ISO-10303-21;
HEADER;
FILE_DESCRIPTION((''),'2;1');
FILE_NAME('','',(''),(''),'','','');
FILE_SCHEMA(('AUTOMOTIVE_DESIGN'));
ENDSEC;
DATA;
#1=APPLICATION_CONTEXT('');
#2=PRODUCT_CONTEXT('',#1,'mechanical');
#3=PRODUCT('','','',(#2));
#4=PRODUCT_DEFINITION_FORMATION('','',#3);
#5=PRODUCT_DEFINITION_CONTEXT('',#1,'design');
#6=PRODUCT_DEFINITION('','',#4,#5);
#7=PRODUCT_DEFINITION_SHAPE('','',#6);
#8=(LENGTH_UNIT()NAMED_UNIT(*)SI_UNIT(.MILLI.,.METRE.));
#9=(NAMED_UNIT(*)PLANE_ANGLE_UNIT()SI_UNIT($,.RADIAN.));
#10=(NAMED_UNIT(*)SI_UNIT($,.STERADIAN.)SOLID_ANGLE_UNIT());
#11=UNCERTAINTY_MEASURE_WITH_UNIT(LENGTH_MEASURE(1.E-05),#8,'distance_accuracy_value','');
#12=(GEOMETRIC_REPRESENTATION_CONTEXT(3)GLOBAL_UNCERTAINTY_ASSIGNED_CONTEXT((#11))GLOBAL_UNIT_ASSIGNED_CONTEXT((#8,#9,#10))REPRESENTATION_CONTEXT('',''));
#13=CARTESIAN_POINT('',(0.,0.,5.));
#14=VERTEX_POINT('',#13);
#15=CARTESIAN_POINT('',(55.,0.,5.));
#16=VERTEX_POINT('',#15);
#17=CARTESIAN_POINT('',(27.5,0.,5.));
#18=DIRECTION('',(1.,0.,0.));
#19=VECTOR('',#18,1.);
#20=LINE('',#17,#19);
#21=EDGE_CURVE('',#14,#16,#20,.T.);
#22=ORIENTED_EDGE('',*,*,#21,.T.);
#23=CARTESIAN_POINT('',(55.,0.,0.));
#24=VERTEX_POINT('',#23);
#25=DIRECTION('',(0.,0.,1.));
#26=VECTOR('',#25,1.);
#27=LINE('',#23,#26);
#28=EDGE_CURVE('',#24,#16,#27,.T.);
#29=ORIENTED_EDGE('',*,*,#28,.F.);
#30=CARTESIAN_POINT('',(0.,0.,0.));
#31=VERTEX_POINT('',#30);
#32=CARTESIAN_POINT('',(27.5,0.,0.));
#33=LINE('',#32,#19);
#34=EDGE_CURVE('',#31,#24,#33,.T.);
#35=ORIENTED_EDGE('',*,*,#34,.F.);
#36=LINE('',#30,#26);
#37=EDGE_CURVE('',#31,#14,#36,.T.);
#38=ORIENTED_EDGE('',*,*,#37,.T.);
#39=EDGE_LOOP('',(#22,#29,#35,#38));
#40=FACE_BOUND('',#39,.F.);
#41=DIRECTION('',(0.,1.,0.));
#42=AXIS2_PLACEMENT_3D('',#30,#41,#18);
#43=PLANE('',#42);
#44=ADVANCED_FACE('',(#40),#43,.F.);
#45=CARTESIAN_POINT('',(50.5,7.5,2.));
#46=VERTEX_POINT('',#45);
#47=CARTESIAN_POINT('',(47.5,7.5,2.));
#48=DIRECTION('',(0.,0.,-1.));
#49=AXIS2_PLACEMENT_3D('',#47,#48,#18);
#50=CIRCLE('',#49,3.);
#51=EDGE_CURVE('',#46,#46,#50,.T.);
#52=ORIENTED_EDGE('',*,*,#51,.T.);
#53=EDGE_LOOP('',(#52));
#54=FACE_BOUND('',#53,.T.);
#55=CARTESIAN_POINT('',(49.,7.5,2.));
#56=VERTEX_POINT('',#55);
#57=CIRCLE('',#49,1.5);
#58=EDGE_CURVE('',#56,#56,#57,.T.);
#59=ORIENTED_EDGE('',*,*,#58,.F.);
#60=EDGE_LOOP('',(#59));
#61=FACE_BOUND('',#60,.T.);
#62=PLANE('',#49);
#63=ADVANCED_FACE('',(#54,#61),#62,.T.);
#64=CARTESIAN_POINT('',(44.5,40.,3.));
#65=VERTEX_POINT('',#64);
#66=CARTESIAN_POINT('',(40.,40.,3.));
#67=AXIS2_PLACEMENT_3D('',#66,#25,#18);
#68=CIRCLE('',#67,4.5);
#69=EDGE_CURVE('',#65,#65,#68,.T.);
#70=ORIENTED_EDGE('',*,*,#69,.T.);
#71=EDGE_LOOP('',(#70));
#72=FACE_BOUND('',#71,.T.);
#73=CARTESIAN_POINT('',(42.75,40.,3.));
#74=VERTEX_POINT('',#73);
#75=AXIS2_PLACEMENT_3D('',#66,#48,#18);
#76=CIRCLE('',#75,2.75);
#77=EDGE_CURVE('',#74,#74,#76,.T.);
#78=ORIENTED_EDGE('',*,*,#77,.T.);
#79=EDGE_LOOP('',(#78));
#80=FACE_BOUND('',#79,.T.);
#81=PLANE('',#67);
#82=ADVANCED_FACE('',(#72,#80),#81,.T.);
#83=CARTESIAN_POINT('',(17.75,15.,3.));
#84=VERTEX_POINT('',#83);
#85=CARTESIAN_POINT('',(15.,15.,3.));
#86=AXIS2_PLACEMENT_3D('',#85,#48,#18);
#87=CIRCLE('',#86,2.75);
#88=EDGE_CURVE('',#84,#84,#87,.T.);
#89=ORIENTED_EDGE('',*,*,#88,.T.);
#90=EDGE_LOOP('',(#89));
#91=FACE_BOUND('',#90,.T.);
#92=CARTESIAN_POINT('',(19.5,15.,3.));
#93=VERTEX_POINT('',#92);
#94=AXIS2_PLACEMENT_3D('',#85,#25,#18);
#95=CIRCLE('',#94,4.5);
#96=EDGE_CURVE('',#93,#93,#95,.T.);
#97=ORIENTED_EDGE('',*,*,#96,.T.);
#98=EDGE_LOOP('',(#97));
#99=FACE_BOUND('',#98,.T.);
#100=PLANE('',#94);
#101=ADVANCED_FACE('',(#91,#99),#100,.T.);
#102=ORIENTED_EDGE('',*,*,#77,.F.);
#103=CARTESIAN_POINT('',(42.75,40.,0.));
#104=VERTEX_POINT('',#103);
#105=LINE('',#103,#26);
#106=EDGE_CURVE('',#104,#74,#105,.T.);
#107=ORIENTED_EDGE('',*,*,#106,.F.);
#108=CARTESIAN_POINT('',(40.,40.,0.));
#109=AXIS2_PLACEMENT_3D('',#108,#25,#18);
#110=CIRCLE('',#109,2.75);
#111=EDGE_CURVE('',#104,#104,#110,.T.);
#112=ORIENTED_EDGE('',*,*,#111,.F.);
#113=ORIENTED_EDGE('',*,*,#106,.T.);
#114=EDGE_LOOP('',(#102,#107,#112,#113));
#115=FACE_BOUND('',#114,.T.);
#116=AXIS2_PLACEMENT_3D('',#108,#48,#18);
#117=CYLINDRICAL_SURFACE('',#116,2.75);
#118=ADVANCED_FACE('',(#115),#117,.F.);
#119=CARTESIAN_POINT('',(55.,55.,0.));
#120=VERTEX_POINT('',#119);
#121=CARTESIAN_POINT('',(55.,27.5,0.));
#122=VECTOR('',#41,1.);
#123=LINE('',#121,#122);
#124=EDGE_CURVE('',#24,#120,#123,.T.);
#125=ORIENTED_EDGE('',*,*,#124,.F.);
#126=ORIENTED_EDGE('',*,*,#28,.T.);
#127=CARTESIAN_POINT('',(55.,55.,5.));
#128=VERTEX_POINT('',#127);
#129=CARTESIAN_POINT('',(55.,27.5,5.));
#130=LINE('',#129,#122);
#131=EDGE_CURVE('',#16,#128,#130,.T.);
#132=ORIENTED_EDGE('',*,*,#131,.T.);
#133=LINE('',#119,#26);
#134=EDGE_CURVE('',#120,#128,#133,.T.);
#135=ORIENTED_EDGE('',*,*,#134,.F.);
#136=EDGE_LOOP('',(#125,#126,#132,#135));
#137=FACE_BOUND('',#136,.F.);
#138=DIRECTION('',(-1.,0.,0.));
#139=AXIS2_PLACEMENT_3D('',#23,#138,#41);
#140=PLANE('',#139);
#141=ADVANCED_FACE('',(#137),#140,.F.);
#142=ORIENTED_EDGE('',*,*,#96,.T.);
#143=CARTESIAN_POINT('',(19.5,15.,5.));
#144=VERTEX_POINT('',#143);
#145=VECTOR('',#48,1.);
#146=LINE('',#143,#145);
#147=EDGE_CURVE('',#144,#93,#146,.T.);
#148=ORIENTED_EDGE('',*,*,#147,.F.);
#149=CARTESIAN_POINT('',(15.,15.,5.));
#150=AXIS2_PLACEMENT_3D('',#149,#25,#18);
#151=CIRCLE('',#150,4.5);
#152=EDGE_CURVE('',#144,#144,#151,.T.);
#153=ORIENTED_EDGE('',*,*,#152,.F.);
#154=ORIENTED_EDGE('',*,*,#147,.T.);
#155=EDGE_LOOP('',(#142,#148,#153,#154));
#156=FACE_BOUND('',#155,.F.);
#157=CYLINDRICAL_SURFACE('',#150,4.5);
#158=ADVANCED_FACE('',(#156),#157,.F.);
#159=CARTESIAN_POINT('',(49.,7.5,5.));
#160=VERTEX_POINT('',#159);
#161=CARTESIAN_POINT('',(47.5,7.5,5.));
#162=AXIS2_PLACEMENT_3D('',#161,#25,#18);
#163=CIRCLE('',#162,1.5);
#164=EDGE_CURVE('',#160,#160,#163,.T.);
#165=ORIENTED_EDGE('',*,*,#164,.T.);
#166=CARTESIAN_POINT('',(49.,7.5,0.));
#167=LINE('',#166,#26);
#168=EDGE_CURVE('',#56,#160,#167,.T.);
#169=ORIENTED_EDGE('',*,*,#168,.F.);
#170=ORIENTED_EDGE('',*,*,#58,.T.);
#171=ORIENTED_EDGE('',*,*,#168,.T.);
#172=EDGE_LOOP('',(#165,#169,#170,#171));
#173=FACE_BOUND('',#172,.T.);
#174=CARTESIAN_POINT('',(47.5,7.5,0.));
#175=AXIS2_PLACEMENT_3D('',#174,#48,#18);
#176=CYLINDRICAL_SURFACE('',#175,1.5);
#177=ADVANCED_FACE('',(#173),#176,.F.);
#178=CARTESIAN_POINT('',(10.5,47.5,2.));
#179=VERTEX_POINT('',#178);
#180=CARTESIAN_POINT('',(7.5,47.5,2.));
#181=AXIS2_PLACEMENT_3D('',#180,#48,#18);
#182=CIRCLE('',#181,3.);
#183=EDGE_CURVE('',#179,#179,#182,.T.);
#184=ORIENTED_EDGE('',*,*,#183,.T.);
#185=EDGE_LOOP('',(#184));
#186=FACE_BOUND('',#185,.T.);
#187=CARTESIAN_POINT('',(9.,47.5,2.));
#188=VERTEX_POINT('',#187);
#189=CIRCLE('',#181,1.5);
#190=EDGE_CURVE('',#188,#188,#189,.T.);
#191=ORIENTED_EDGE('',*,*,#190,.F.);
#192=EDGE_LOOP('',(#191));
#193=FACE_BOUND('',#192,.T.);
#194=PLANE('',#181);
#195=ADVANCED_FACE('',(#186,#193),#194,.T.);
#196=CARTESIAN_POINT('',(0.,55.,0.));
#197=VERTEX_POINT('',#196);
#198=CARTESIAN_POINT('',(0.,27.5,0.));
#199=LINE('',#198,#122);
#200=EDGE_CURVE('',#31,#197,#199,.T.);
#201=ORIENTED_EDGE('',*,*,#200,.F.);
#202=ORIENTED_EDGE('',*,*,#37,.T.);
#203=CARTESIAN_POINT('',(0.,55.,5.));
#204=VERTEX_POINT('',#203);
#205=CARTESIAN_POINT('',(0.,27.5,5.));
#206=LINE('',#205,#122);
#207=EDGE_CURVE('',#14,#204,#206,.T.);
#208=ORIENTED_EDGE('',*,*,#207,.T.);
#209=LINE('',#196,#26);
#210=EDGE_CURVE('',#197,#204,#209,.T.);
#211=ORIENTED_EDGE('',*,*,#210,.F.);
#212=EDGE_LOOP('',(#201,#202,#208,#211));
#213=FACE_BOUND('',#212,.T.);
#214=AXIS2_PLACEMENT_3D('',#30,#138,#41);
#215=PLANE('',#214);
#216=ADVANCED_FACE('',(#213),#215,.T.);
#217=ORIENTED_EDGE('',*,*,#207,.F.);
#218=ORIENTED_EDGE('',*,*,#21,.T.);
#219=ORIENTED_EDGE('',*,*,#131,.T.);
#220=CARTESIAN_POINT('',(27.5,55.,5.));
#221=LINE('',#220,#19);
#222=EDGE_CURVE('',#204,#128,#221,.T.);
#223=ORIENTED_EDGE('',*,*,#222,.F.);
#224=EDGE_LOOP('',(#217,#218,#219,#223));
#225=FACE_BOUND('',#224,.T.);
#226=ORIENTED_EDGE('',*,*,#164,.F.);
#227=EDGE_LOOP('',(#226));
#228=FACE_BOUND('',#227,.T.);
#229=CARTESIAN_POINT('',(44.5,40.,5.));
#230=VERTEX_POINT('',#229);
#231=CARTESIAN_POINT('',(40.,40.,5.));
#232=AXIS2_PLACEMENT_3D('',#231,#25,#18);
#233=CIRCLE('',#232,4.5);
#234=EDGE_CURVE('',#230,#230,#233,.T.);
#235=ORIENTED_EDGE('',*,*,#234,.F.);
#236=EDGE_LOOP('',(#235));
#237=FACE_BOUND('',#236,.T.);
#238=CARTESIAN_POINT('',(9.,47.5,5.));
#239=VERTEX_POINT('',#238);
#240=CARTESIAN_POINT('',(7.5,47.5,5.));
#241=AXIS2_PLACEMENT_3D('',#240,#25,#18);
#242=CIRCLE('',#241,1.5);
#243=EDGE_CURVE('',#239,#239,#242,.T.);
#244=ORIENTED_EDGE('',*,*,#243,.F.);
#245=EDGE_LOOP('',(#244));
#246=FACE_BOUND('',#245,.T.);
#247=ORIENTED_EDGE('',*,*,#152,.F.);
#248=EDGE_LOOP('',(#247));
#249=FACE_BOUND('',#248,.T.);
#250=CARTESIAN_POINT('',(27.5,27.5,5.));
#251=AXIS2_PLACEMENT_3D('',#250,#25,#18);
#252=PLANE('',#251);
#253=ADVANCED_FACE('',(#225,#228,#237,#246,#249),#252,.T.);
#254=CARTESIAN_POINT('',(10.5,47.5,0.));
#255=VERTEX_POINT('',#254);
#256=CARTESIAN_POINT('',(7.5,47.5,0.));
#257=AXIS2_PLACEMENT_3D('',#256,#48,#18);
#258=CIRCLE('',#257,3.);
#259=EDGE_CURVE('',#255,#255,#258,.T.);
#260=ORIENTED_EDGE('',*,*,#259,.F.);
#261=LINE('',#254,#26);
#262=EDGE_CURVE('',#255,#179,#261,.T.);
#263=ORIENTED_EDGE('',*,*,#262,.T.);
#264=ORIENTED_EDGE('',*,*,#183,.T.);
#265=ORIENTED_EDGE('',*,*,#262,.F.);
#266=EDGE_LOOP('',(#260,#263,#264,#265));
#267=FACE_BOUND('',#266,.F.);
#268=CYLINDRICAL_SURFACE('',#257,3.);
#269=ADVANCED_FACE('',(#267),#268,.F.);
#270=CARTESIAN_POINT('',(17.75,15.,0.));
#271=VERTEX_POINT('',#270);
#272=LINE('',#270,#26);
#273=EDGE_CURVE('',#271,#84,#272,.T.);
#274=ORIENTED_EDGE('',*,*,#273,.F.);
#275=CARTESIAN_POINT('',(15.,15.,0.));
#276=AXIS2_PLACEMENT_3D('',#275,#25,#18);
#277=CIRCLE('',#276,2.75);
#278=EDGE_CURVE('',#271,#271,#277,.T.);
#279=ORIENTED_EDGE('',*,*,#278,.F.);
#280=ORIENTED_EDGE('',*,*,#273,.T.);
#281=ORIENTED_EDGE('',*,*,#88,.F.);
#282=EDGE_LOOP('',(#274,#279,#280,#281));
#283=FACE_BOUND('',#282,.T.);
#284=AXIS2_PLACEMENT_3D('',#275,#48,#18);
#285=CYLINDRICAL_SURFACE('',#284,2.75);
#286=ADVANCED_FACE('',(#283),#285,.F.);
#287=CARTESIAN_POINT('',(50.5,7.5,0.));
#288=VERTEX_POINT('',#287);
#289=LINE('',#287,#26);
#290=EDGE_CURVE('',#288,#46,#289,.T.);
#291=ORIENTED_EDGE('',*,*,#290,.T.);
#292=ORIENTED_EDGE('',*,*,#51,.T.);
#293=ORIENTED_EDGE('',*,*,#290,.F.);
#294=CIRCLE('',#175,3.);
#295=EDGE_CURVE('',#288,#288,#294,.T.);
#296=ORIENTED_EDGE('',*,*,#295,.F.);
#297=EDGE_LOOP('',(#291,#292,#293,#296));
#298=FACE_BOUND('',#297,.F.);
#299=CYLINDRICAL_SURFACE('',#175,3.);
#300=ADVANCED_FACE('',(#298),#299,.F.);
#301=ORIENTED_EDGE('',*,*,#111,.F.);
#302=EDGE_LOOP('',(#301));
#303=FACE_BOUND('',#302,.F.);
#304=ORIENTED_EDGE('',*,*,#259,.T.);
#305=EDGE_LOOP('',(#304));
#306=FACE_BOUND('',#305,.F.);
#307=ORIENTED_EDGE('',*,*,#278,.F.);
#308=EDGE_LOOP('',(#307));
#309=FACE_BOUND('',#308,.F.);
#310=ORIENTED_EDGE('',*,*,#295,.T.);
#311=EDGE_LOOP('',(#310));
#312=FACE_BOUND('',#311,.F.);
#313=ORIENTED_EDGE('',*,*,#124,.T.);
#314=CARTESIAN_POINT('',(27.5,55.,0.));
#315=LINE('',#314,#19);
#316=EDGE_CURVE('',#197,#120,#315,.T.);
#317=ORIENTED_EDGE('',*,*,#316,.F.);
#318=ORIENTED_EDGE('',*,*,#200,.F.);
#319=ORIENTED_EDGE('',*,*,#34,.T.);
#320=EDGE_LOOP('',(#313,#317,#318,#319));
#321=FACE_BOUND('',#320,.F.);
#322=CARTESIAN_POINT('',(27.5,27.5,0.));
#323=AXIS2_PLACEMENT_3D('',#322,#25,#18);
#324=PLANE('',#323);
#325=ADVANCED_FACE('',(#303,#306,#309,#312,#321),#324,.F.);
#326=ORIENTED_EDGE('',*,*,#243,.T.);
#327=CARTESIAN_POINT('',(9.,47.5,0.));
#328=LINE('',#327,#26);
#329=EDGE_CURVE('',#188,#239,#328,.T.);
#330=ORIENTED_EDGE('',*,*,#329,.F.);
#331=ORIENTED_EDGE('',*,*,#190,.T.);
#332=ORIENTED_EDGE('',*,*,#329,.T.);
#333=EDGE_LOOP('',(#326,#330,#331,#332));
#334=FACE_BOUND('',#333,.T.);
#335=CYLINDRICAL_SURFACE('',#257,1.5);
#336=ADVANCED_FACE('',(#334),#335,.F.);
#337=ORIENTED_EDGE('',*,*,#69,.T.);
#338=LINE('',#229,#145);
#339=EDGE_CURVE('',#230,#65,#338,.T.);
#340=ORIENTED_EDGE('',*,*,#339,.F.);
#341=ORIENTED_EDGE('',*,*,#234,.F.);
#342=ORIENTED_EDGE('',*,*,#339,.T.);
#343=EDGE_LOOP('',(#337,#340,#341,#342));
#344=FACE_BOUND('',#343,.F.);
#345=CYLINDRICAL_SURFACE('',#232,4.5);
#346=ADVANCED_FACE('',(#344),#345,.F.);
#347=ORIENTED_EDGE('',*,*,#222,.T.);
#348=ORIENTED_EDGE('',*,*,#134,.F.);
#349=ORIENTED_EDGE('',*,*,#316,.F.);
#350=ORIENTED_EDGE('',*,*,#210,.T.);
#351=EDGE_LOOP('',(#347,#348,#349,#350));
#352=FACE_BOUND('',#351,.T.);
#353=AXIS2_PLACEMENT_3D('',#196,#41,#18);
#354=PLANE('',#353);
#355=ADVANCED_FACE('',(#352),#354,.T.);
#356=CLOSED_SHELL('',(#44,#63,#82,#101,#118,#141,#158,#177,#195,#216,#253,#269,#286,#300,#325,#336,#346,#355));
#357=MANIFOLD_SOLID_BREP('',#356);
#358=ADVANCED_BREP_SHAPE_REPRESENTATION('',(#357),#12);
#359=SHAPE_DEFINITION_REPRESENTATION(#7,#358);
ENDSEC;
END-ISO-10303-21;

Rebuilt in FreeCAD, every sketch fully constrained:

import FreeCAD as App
import Part
import Sketcher

V = App.Vector

doc = App.newDocument("Part")
body = doc.addObject("PartDesign::Body", "Body")

# Sketch on XY plane
sketch1 = body.newObject("Sketcher::SketchObject", "Sketch")
sketch1.AttachmentSupport = (doc.getObject("XY_Plane"), [""])
sketch1.MapMode = "FlatFace"
sketch1.addGeometry([
    Part.LineSegment(V(0, 55, 0), V(0, 0, 0)),  # 0
    Part.LineSegment(V(0, 0, 0), V(55, 0, 0)),  # 1
    Part.LineSegment(V(55, 0, 0), V(55, 55, 0)),  # 2
    Part.LineSegment(V(55, 55, 0), V(0, 55, 0)),  # 3
    Part.Circle(V(15, 15, 0), V(0, 0, 1), 2.8),  # 4
    Part.Circle(V(47.5, 7.5, 0), V(0, 0, 1), 1.5),  # 5
    Part.Circle(V(7.5, 47.5, 0), V(0, 0, 1), 1.5),  # 6
    Part.Circle(V(40, 40, 0), V(0, 0, 1), 2.8),  # 7
], False)
sketch1.addConstraint([
    Sketcher.Constraint("Coincident", 0, 2, 1, 1),
    Sketcher.Constraint("Coincident", 1, 2, 2, 1),
    Sketcher.Constraint("Coincident", 2, 2, 3, 1),
    Sketcher.Constraint("Coincident", 3, 2, 0, 1),
    Sketcher.Constraint("Vertical", 0),
    Sketcher.Constraint("Horizontal", 1),
    Sketcher.Constraint("Vertical", 2),
    Sketcher.Constraint("Horizontal", 3),
    Sketcher.Constraint("Coincident", 0, 2, -1, 1),
    Sketcher.Constraint("Equal", 5, 6),
    Sketcher.Constraint("Equal", 4, 7),
    Sketcher.Constraint("Equal", 3, 0),
    Sketcher.Constraint("Diameter", 5, 3.0),
    Sketcher.Constraint("Diameter", 4, 5.5),
    Sketcher.Constraint("DistanceX", 1, 1, 1, 2, 55.0),
    Sketcher.Constraint("DistanceX", -1, 1, 4, 3, 15.0),
    Sketcher.Constraint("DistanceY", -1, 1, 4, 3, 15.0),
    Sketcher.Constraint("DistanceX", -1, 1, 7, 3, 40.0),
    Sketcher.Constraint("DistanceY", -1, 1, 7, 3, 40.0),
    Sketcher.Constraint("DistanceX", 6, 3, 5, 3, 40.0),
    Sketcher.Constraint("DistanceY", 5, 3, 6, 3, 40.0),
    Sketcher.Constraint("DistanceX", -1, 1, 5, 3, 47.5),
    Sketcher.Constraint("DistanceY", -1, 1, 5, 3, 7.5),
])
pad1 = body.newObject("PartDesign::Pad", "Pad")
pad1.Profile = sketch1
pad1.Length = 5

# Sketch on XY plane
sketch2 = body.newObject("Sketcher::SketchObject", "Sketch001")
sketch2.AttachmentSupport = (doc.getObject("XY_Plane"), [""])
sketch2.MapMode = "FlatFace"
sketch2.AttachmentOffset = App.Placement(V(0, 0, 5), App.Rotation())
sketch2.addGeometry([
    Part.Circle(V(40, 40, 0), V(0, 0, 1), 4.5),
    Part.Circle(V(15, 15, 0), V(0, 0, 1), 4.5),
], False)
sketch2.addConstraint([
    Sketcher.Constraint("Equal", 0, 1),
    Sketcher.Constraint("Diameter", 0, 9.0),
    Sketcher.Constraint("DistanceX", -1, 1, 0, 3, 40.0),
    Sketcher.Constraint("DistanceY", -1, 1, 0, 3, 40.0),
    Sketcher.Constraint("DistanceX", -1, 1, 1, 3, 15.0),
    Sketcher.Constraint("DistanceY", -1, 1, 1, 3, 15.0),
])
pocket1 = body.newObject("PartDesign::Pocket", "Pocket")
pocket1.Profile = sketch2
pocket1.Length = 2

# Sketch on XY plane
sketch3 = body.newObject("Sketcher::SketchObject", "Sketch002")
sketch3.AttachmentSupport = (doc.getObject("XY_Plane"), [""])
sketch3.MapMode = "FlatFace"
sketch3.addGeometry([
    Part.Circle(V(47.5, 7.5, 0), V(0, 0, 1), 3),
    Part.Circle(V(7.5, 47.5, 0), V(0, 0, 1), 3),
], False)
sketch3.addConstraint([
    Sketcher.Constraint("Equal", 0, 1),
    Sketcher.Constraint("Diameter", 0, 6.0),
    Sketcher.Constraint("DistanceX", 1, 3, 0, 3, 40.0),
    Sketcher.Constraint("DistanceY", 0, 3, 1, 3, 40.0),
    Sketcher.Constraint("DistanceX", -1, 1, 0, 3, 47.5),
    Sketcher.Constraint("DistanceY", -1, 1, 0, 3, 7.5),
])
pocket2 = body.newObject("PartDesign::Pocket", "Pocket001")
pocket2.Profile = sketch3
pocket2.Length = 2
pocket2.Reversed = True

doc.recompute()
